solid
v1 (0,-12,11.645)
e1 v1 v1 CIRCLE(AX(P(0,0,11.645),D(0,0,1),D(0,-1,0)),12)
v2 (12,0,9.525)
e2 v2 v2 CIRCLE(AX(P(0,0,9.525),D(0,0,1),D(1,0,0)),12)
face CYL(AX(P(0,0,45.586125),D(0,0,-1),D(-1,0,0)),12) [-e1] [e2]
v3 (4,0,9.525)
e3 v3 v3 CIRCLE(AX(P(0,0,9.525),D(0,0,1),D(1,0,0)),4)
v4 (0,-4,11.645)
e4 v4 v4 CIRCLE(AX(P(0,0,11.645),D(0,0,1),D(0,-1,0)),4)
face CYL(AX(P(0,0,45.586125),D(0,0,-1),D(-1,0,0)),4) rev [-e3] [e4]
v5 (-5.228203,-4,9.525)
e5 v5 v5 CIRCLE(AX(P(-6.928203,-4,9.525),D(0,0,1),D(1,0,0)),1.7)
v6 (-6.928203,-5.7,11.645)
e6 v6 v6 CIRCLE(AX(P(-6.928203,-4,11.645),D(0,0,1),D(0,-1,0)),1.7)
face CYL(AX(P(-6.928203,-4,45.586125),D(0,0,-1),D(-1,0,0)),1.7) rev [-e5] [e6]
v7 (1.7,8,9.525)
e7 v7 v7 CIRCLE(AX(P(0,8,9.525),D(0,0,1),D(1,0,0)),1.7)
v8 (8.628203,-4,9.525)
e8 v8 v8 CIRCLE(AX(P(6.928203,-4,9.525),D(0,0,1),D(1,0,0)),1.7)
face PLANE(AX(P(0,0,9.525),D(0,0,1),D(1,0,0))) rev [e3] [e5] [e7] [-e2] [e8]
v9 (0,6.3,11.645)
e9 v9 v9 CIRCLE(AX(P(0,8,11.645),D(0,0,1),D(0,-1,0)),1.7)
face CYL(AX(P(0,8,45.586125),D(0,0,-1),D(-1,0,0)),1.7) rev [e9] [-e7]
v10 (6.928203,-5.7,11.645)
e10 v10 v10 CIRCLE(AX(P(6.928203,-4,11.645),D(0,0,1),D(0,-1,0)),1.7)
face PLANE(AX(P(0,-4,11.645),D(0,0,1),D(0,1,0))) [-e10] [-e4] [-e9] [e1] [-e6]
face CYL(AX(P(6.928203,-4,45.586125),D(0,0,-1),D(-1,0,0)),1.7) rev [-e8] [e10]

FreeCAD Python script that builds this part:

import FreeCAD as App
import Part
import Sketcher
from FreeCAD import Vector
Q = App.Units.Quantity

doc = App.newDocument("Part")
body = doc.addObject("PartDesign::Body", "Body")

# Sketch on XY plane
sketch1 = body.newObject("Sketcher::SketchObject", "Sketch")
sketch1.AttachmentSupport = (doc.getObject("XY_Plane"), [""])
sketch1.MapMode = "FlatFace"
sketch1.AttachmentOffset = App.Placement(Vector(0, 0, 9.525), App.Rotation())
sketch1.addGeometry(Part.Circle(Vector(0, 0, 0), Vector(0, 0, 1), 12), False)
sketch1.addGeometry(Part.Circle(Vector(0, 8, 0), Vector(0, 0, 1), 1.7), False)
sketch1.addGeometry(Part.Circle(Vector(-6.9, -4, 0), Vector(0, 0, 1), 1.7), False)
sketch1.addGeometry(Part.Circle(Vector(0, 0, 0), Vector(0, 0, 1), 4), False)
sketch1.addGeometry(Part.Circle(Vector(6.9, -4, 0), Vector(0, 0, 1), 1.7), False)
sketch1.addConstraint(Sketcher.Constraint("Coincident", 0, 3, -1, 1))
sketch1.addConstraint(Sketcher.Constraint("Coincident", 3, 3, -1, 1))
sketch1.addConstraint(Sketcher.Constraint("Equal", 1, 2))
sketch1.addConstraint(Sketcher.Constraint("Equal", 2, 4))
sketch1.addConstraint(Sketcher.Constraint("Symmetric", 2, 3, 4, 3, -2))
sketch1.addConstraint(Sketcher.Constraint("PointOnObject", 1, 3, -2))
sketch1.addConstraint(Sketcher.Constraint("Diameter", 0, Q("24 mm")))
sketch1.addConstraint(Sketcher.Constraint("Diameter", 3, Q("8 mm")))
sketch1.addConstraint(Sketcher.Constraint("Diameter", 1, Q("3.4 mm")))
sketch1.addConstraint(Sketcher.Constraint("DistanceY", -1, 1, 1, 3, Q("8 mm")))
sketch1.addConstraint(Sketcher.Constraint("DistanceY", 2, 3, -1, 1, Q("4 mm")))
sketch1.addConstraint(Sketcher.Constraint("DistanceX", 2, 3, -1, 1, Q("6.928203 mm")))
pad1 = body.newObject("PartDesign::Pad", "Pad")
pad1.Profile = sketch1
pad1.Length = 2.12

doc.recompute()
